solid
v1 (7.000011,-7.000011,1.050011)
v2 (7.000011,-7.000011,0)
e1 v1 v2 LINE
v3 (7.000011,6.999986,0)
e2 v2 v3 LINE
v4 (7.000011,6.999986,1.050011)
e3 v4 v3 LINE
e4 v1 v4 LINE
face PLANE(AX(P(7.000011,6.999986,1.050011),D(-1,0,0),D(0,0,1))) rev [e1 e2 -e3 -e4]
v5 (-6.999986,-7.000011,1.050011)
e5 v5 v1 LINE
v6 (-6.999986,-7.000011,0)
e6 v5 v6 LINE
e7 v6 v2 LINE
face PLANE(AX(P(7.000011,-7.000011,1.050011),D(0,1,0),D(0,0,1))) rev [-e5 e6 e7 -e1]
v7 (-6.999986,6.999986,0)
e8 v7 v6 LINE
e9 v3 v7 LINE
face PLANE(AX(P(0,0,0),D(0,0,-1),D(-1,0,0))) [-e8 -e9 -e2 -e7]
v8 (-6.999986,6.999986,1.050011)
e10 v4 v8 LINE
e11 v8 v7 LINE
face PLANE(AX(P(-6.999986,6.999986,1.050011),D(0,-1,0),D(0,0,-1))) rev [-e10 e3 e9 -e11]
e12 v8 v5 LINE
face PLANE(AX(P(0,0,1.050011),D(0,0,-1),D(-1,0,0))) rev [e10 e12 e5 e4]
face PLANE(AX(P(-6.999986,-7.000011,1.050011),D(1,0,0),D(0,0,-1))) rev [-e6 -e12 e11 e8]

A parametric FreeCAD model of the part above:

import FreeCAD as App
import Part
import Sketcher
Q = App.Units.Quantity


def add_polygon(sketch, points):
    """Adds a closed chain of lines whose ends are joined by coincident constraints."""
    first, n = sketch.GeometryCount, len(points)
    for a, b in zip(points, points[1:] + points[:1]):
        sketch.addGeometry(Part.LineSegment(App.Vector(*a, 0), App.Vector(*b, 0)), False)
    for i in range(n):
        sketch.addConstraint(Sketcher.Constraint("Coincident", first + i, 2, first + (i + 1) % n, 1))

doc = App.newDocument("Part")
params = doc.addObject("Spreadsheet::Sheet", "Params")
for row, (alias, value) in enumerate([
    ("pad1_length", "1.050011 mm"),
], start=1):
    params.set(f"A{row}", alias)
    params.set(f"B{row}", "=" + value)
    params.setAlias(f"B{row}", alias)

body = doc.addObject("PartDesign::Body", "Body")

# Sketch on XY plane
sketch1 = doc.addObject("Sketcher::SketchObject", "Sketch")
body.addObject(sketch1)
sketch1.AttachmentSupport = (doc.XY_Plane, [""])
sketch1.MapMode = "FlatFace"
add_polygon(sketch1, [(-6.999986, 6.999986), (-6.999986, -7.000011), (7.000011, -7.000011), (7.000011, 6.999986)])  # lines 0-3
sketch1.addConstraint(Sketcher.Constraint("Vertical", 0))
sketch1.addConstraint(Sketcher.Constraint("Horizontal", 1))
sketch1.addConstraint(Sketcher.Constraint("Vertical", 2))
sketch1.addConstraint(Sketcher.Constraint("Horizontal", 3))
sketch1.addConstraint(Sketcher.Constraint("Equal", 3, 0))
sketch1.addConstraint(Sketcher.Constraint("DistanceX", 1, 1, 1, 2, Q("13.999997 mm")))
sketch1.addConstraint(Sketcher.Constraint("DistanceY", 0, 2, -1, 1, Q("7.000011 mm")))
sketch1.addConstraint(Sketcher.Constraint("DistanceX", -1, 1, 1, 2, Q("7.000011 mm")))
pad1 = doc.addObject("PartDesign::Pad", "Pad")
body.addObject(pad1)
pad1.Profile = sketch1
pad1.setExpression("Length", "Params.pad1_length")

doc.recompute()
